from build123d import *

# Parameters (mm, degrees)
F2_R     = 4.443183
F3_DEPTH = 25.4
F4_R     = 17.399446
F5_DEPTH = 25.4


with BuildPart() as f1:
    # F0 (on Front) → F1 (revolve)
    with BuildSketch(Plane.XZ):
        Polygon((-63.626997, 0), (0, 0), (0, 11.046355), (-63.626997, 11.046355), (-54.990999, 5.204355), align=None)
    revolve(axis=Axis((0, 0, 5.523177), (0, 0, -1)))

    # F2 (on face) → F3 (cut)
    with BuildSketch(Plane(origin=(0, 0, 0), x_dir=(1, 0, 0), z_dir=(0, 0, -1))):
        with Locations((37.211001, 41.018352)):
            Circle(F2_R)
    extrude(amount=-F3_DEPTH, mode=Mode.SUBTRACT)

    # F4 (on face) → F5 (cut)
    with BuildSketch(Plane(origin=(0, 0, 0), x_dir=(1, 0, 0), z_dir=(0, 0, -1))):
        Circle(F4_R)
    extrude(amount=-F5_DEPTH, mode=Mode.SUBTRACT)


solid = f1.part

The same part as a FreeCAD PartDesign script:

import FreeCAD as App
import Part
import Sketcher
from FreeCAD import Vector
Q = App.Units.Quantity


def add_polygon(sketch, points):
    """Adds a closed chain of lines whose ends are joined by coincident constraints."""
    first, n = sketch.GeometryCount, len(points)
    for a, b in zip(points, points[1:] + points[:1]):
        sketch.addGeometry(Part.LineSegment(App.Vector(*a, 0), App.Vector(*b, 0)), False)
    for i in range(n):
        sketch.addConstraint(Sketcher.Constraint("Coincident", first + i, 2, first + (i + 1) % n, 1))

doc = App.newDocument("Part")
body = doc.addObject("PartDesign::Body", "Body")

sketch1 = body.newObject("Sketcher::SketchObject", "Sketch")
sketch1.AttachmentSupport = (doc.getObject("XZ_Plane"), [""])
sketch1.MapMode = "FlatFace"
add_polygon(sketch1, [(-64, 0), (0, 0), (0, 11), (-64, 11), (-55, 5)])
sketch1.addConstraint([
    Sketcher.Constraint("Horizontal", 0),
    Sketcher.Constraint("Vertical", 1),
    Sketcher.Constraint("Horizontal", 2),
    Sketcher.Constraint("Coincident", 0, 2, -1, 1),
    Sketcher.Constraint("Vertical", 2, 2, 4, 2),
    Sketcher.Constraint("DistanceX", 0, 1, 0, 2, Q("2.5049999 in")),
    Sketcher.Constraint("DistanceX", 2, 2, 3, 2, Q("0.3399999 in")),
    Sketcher.Constraint("DistanceY", 3, 2, 2, 2, Q("0.23 in")),
    Sketcher.Constraint("DistanceY", 1, 1, 1, 2, Q("11.046355 mm")),
])
revolution = body.newObject("PartDesign::Revolution", "Revolution")
revolution.Profile = sketch1
revolution.ReferenceAxis = (sketch1, ["V_Axis"])
revolution.Angle = 360

sketch2 = body.newObject("Sketcher::SketchObject", "Sketch001")
sketch2.AttachmentSupport = (doc.getObject("XY_Plane"), [""])
sketch2.MapMode = "FlatFace"
sketch2.addGeometry(Part.Circle(Vector(37.2, -41, 0), Vector(0, 0, 1), 4.4), False)
sketch2.addConstraint([
    Sketcher.Constraint("DistanceX", -1, 1, 0, 3, Q("1.465 in")),
    Sketcher.Constraint("Diameter", 0, Q("8.886366 mm")),
    Sketcher.Constraint("DistanceY", 0, 3, -1, 1, Q("41.018352 mm")),
])
pocket1 = body.newObject("PartDesign::Pocket", "Pocket")
pocket1.Profile = sketch2
pocket1.Length = Q("1 in")
pocket1.Reversed = True

sketch3 = body.newObject("Sketcher::SketchObject", "Sketch002")
sketch3.AttachmentSupport = (doc.getObject("XY_Plane"), [""])
sketch3.MapMode = "FlatFace"
sketch3.addGeometry(Part.Circle(Vector(0, 0, 0), Vector(0, 0, 1), 17), False)
sketch3.addConstraint([
    Sketcher.Constraint("Coincident", 0, 3, -1, 1),
    Sketcher.Constraint("Diameter", 0, Q("34.798892 mm")),
])
pocket2 = body.newObject("PartDesign::Pocket", "Pocket001")
pocket2.Profile = sketch3
pocket2.Length = Q("1 in")
pocket2.Reversed = True

doc.recompute()
